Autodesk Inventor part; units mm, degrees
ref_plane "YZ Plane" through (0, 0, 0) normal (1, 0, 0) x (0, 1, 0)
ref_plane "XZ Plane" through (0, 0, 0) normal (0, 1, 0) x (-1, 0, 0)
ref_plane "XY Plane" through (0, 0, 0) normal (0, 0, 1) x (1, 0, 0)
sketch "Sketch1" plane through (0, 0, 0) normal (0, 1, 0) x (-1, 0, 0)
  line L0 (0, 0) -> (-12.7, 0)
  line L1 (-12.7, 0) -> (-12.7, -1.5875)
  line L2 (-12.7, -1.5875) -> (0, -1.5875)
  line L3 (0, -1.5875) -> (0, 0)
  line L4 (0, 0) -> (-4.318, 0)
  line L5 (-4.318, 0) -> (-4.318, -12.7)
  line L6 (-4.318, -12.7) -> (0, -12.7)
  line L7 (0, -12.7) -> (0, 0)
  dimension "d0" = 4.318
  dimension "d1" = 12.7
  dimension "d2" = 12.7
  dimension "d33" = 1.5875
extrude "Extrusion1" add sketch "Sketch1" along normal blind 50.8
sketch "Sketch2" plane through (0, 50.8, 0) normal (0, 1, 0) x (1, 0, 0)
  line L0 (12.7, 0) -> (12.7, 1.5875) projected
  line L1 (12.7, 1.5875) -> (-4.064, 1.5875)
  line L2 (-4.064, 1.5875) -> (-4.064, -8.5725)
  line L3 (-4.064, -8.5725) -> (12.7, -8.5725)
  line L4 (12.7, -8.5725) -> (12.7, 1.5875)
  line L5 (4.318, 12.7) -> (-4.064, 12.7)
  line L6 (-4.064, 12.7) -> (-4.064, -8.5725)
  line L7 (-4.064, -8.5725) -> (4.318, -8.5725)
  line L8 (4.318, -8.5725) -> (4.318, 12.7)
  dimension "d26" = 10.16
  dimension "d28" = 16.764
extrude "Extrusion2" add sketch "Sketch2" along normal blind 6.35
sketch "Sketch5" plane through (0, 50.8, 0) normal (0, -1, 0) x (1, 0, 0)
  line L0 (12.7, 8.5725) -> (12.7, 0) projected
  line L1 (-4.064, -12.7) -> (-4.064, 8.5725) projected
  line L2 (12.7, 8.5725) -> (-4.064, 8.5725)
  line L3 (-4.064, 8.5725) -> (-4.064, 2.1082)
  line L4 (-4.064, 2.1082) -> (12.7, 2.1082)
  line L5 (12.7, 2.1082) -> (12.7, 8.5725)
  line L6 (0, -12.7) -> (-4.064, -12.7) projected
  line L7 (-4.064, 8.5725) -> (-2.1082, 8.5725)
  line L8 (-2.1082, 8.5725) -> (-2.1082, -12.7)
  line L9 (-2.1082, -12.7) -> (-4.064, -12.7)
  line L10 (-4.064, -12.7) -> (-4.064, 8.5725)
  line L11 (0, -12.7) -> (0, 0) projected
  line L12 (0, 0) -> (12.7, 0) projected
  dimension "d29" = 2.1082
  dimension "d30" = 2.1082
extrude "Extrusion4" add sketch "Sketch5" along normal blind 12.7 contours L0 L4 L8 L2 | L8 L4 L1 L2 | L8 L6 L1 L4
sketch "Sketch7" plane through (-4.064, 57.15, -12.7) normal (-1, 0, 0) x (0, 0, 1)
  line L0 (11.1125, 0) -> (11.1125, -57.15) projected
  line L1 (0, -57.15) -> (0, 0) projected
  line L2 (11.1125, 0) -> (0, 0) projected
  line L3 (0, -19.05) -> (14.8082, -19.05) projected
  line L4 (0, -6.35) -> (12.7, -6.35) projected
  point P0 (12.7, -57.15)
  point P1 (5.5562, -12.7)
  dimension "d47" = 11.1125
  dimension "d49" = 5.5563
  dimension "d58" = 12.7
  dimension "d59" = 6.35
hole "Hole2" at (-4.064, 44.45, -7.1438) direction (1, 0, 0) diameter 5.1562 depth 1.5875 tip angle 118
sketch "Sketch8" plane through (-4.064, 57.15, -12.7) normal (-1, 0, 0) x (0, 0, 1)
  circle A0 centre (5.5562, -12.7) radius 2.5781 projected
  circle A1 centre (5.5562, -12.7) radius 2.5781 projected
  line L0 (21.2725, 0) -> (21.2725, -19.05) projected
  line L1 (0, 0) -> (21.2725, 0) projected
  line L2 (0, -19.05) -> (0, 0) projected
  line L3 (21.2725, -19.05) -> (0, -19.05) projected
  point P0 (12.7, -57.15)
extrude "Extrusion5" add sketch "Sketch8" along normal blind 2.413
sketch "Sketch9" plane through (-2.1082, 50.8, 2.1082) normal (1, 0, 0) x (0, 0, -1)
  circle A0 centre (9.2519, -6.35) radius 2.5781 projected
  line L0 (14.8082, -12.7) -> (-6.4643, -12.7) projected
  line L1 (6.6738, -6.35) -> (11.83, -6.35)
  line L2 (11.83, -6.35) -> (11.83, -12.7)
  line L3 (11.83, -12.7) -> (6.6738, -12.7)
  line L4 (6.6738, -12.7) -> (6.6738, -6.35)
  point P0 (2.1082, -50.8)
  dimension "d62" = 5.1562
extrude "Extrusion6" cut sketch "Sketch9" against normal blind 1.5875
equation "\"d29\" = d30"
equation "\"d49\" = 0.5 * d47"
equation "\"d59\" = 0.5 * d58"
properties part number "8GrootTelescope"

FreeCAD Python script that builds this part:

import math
import FreeCAD as App
import Part
import Sketcher
from FreeCAD import Vector
Q = App.Units.Quantity

doc = App.newDocument("Part")
body = doc.addObject("PartDesign::Body", "Body")

sketch1 = doc.addObject("Sketcher::SketchObject", "Sketch")
body.addObject(sketch1)
sketch1.AttachmentSupport = (doc.XZ_Plane, [""])
sketch1.MapMode = "FlatFace"
sketch1.addGeometry([
    Part.LineSegment(Vector(0, 0, 0), Vector(12.7, 0, 0)),
    Part.LineSegment(Vector(12.7, 0, 0), Vector(12.7, -1.6, 0)),
    Part.LineSegment(Vector(12.7, -1.6, 0), Vector(4.3, -1.6, 0)),
    Part.LineSegment(Vector(4.3, -1.6, 0), Vector(4.3, -12.7, 0)),
    Part.LineSegment(Vector(4.3, -12.7, 0), Vector(0, -12.7, 0)),
    Part.LineSegment(Vector(0, -12.7, 0), Vector(0, 0, 0)),
], False)
sketch1.addConstraint([
    Sketcher.Constraint("Coincident", 0, 2, 1, 1),
    Sketcher.Constraint("Coincident", 1, 2, 2, 1),
    Sketcher.Constraint("Coincident", 2, 2, 3, 1),
    Sketcher.Constraint("Coincident", 3, 2, 4, 1),
    Sketcher.Constraint("Coincident", 4, 2, 5, 1),
    Sketcher.Constraint("Coincident", 5, 2, 0, 1),
    Sketcher.Constraint("Horizontal", 0),
    Sketcher.Constraint("Vertical", 1),
    Sketcher.Constraint("Horizontal", 2),
    Sketcher.Constraint("Vertical", 3),
    Sketcher.Constraint("Horizontal", 4),
    Sketcher.Constraint("Vertical", 5),
    Sketcher.Constraint("Coincident", 5, 2, -1, 1),
    Sketcher.Constraint("Equal", 0, 5),
    Sketcher.Constraint("DistanceX", 0, 1, 0, 2, Q("0.5 in")),
    Sketcher.Constraint("DistanceX", 4, 2, 4, 1, Q("0.17 in")),
    Sketcher.Constraint("DistanceY", 1, 2, 1, 1, Q("0.0625 in")),
])
pad1 = doc.addObject("PartDesign::Pad", "Pad")
body.addObject(pad1)
pad1.Profile = sketch1
pad1.Length = Q("2 in")
pad1.Reversed = True

sketch2 = doc.addObject("Sketcher::SketchObject", "Sketch001")
body.addObject(sketch2)
sketch2.AttachmentSupport = (doc.XZ_Plane, [""])
sketch2.MapMode = "FlatFace"
sketch2.AttachmentOffset = App.Placement(Vector(0, 0, -2 * 25.4), App.Rotation())
sketch2.addGeometry([
    Part.LineSegment(Vector(13, 9, 0), Vector(13, -2, 0)),
    Part.LineSegment(Vector(13, -2, 0), Vector(4, -2, 0)),
    Part.LineSegment(Vector(4, -2, 0), Vector(4, -13, 0)),
    Part.LineSegment(Vector(4, -13, 0), Vector(-4, -13, 0)),
    Part.LineSegment(Vector(-4, -13, 0), Vector(-4, 9, 0)),
    Part.LineSegment(Vector(-4, 9, 0), Vector(13, 9, 0)),
], False)
sketch2.addConstraint([
    Sketcher.Constraint("Coincident", 0, 2, 1, 1),
    Sketcher.Constraint("Coincident", 1, 2, 2, 1),
    Sketcher.Constraint("Coincident", 2, 2, 3, 1),
    Sketcher.Constraint("Coincident", 3, 2, 4, 1),
    Sketcher.Constraint("Coincident", 4, 2, 5, 1),
    Sketcher.Constraint("Coincident", 5, 2, 0, 1),
    Sketcher.Constraint("Vertical", 0),
    Sketcher.Constraint("Horizontal", 1),
    Sketcher.Constraint("Vertical", 2),
    Sketcher.Constraint("Horizontal", 3),
    Sketcher.Constraint("Vertical", 4),
    Sketcher.Constraint("Horizontal", 5),
    Sketcher.Constraint("Equal", 1, 3),
    Sketcher.Constraint("DistanceY", 0, 2, 0, 1, Q("0.4 in")),
    Sketcher.Constraint("DistanceX", 5, 1, 5, 2, Q("0.66 in")),
    Sketcher.Constraint("DistanceX", -1, 1, 0, 2, Q("0.5 in")),
    Sketcher.Constraint("DistanceY", 2, 2, -1, 1, Q("0.5 in")),
    Sketcher.Constraint("DistanceY", 2, 2, 2, 1, Q("0.4375 in")),
])
pad2 = doc.addObject("PartDesign::Pad", "Pad001")
body.addObject(pad2)
pad2.Profile = sketch2
pad2.Length = Q("0.25 in")
pad2.Reversed = True

sketch3 = doc.addObject("Sketcher::SketchObject", "Sketch002")
body.addObject(sketch3)
sketch3.AttachmentSupport = (doc.XZ_Plane, [""])
sketch3.MapMode = "FlatFace"
sketch3.AttachmentOffset = App.Placement(Vector(0, 0, -2 * 25.4), App.Rotation())
sketch3.addGeometry([
    Part.LineSegment(Vector(12.7, 2.1, 0), Vector(12.7, 8.6, 0)),
    Part.LineSegment(Vector(12.7, 8.6, 0), Vector(-4.1, 8.6, 0)),
    Part.LineSegment(Vector(-4.1, 8.6, 0), Vector(-4.1, -12.7, 0)),
    Part.LineSegment(Vector(-4.1, -12.7, 0), Vector(-2.1, -12.7, 0)),
    Part.LineSegment(Vector(-2.1, -12.7, 0), Vector(-2.1, 2.1, 0)),
    Part.LineSegment(Vector(-2.1, 2.1, 0), Vector(12.7, 2.1, 0)),
], False)
sketch3.addConstraint([
    Sketcher.Constraint("Coincident", 0, 2, 1, 1),
    Sketcher.Constraint("Coincident", 1, 2, 2, 1),
    Sketcher.Constraint("Coincident", 2, 2, 3, 1),
    Sketcher.Constraint("Coincident", 3, 2, 4, 1),
    Sketcher.Constraint("Coincident", 4, 2, 5, 1),
    Sketcher.Constraint("Coincident", 5, 2, 0, 1),
    Sketcher.Constraint("Vertical", 0),
    Sketcher.Constraint("Horizontal", 1),
    Sketcher.Constraint("Vertical", 2),
    Sketcher.Constraint("Horizontal", 3),
    Sketcher.Constraint("Vertical", 4),
    Sketcher.Constraint("Horizontal", 5),
    Sketcher.Constraint("Equal", 5, 4),
    Sketcher.Constraint("DistanceX", 3, 2, -1, 1, Q("0.083 in")),
    Sketcher.Constraint("DistanceY", -1, 1, 4, 2, Q("0.083 in")),
    Sketcher.Constraint("DistanceX", 1, 2, 1, 1, Q("0.66 in")),
    Sketcher.Constraint("DistanceX", -1, 1, 0, 2, Q("0.5 in")),
    Sketcher.Constraint("DistanceY", 0, 1, 0, 2, Q("0.2545 in")),
])
pad3 = doc.addObject("PartDesign::Pad", "Pad002")
body.addObject(pad3)
pad3.Profile = sketch3
pad3.Length = Q("0.5 in")

sketch4 = doc.addObject("Sketcher::SketchObject", "Sketch003")
body.addObject(sketch4)
sketch4.AttachmentSupport = (doc.YZ_Plane, [""])
sketch4.MapMode = "FlatFace"
sketch4.AttachmentOffset = App.Placement(Vector(0, 0, -0.16 * 25.4), App.Rotation())
sketch4.addGeometry(Part.Circle(Vector(44.5, -7.1, 0), Vector(0, 0, 1), 2.6), False)
sketch4.addConstraint([
    Sketcher.Constraint("Diameter", 0, Q("0.203 in")),
    Sketcher.Constraint("DistanceX", -1, 1, 0, 3, Q("1.75 in")),
    Sketcher.Constraint("DistanceY", 0, 3, -1, 1, Q("0.281252 in")),
])
doc.recompute()
hole = doc.addObject("PartDesign::Hole", "Hole")
body.addObject(hole)
hole.Profile = sketch4
hole.ThreadType = "None"
hole.Diameter = Q("0.203 in")
hole.DepthType = "Dimension"
hole.Depth = Q("0.0625 in")
hole.DrillPoint = "Angled"
hole.DrillPointAngle = 118
hole.Reversed = True

sketch5 = doc.addObject("Sketcher::SketchObject", "Sketch004")
body.addObject(sketch5)
sketch5.AttachmentSupport = (doc.YZ_Plane, [""])
sketch5.MapMode = "FlatFace"
sketch5.AttachmentOffset = App.Placement(Vector(0, 0, -0.16 * 25.4), App.Rotation())
sketch5.addGeometry([
    Part.LineSegment(Vector(38.1, 8.6, 0), Vector(57.1, 8.6, 0)),
    Part.LineSegment(Vector(57.1, 8.6, 0), Vector(57.1, -12.7, 0)),
    Part.LineSegment(Vector(57.1, -12.7, 0), Vector(38.1, -12.7, 0)),
    Part.LineSegment(Vector(38.1, -12.7, 0), Vector(38.1, 8.6, 0)),
    Part.Circle(Vector(44.5, -7.1, 0), Vector(0, 0, 1), 2.6),
], False)
sketch5.addConstraint([
    Sketcher.Constraint("Coincident", 0, 2, 1, 1),
    Sketcher.Constraint("Coincident", 1, 2, 2, 1),
    Sketcher.Constraint("Coincident", 2, 2, 3, 1),
    Sketcher.Constraint("Coincident", 3, 2, 0, 1),
    Sketcher.Constraint("Horizontal", 0),
    Sketcher.Constraint("Vertical", 1),
    Sketcher.Constraint("Horizontal", 2),
    Sketcher.Constraint("Vertical", 3),
    Sketcher.Constraint("Diameter", 4, Q("0.203 in")),
    Sketcher.Constraint("DistanceX", 0, 1, 0, 2, Q("0.75 in")),
    Sketcher.Constraint("DistanceY", 1, 2, -1, 1, Q("0.5 in")),
    Sketcher.Constraint("DistanceX", -1, 1, 2, 2, Q("1.5 in")),
    Sketcher.Constraint("DistanceX", 4, 3, 0, 2, Q("0.5 in")),
    Sketcher.Constraint("DistanceY", 1, 2, 1, 1, Q("0.8375 in")),
    Sketcher.Constraint("DistanceY", 4, 3, -1, 1, Q("0.281252 in")),
])
pad4 = doc.addObject("PartDesign::Pad", "Pad003")
body.addObject(pad4)
pad4.Profile = sketch5
pad4.Length = Q("0.095 in")
pad4.Reversed = True

sketch6 = doc.addObject("Sketcher::SketchObject", "Sketch005")
body.addObject(sketch6)
sketch6.AttachmentSupport = (doc.YZ_Plane, [""])
sketch6.MapMode = "FlatFace"
sketch6.AttachmentOffset = App.Placement(Vector(0, 0, -0.083 * 25.4), App.Rotation())
sketch6.addGeometry([
    Part.ArcOfCircle(Part.Circle(Vector(44.5, -7.1, 0), Vector(0, 0, 1), 2.6), math.radians(-90), math.radians(90)),
    Part.LineSegment(Vector(44.5, -4.6, 0), Vector(38.1, -4.6, 0)),
    Part.LineSegment(Vector(38.1, -4.6, 0), Vector(38.1, -9.7, 0)),
    Part.LineSegment(Vector(38.1, -9.7, 0), Vector(44.5, -9.7, 0)),
], False)
sketch6.addConstraint([
    Sketcher.Constraint("Tangent", 0, 2, 1, 1),
    Sketcher.Constraint("Coincident", 1, 2, 2, 1),
    Sketcher.Constraint("Coincident", 2, 2, 3, 1),
    Sketcher.Constraint("Tangent", 3, 2, 0, 1),
    Sketcher.Constraint("Horizontal", 1),
    Sketcher.Constraint("Vertical", 2),
    Sketcher.Constraint("Horizontal", 3),
    Sketcher.Constraint("Radius", 0, Q("0.1015 in")),
    Sketcher.Constraint("DistanceX", 1, 2, 1, 1, Q("0.25 in")),
    Sketcher.Constraint("DistanceX", -1, 1, 1, 2, Q("1.5 in")),
    Sketcher.Constraint("DistanceY", 0, 3, -1, 1, Q("0.281248 in")),
])
pocket1 = doc.addObject("PartDesign::Pocket", "Pocket")
body.addObject(pocket1)
pocket1.Profile = sketch6
pocket1.Length = Q("0.0625 in")

doc.recompute()
